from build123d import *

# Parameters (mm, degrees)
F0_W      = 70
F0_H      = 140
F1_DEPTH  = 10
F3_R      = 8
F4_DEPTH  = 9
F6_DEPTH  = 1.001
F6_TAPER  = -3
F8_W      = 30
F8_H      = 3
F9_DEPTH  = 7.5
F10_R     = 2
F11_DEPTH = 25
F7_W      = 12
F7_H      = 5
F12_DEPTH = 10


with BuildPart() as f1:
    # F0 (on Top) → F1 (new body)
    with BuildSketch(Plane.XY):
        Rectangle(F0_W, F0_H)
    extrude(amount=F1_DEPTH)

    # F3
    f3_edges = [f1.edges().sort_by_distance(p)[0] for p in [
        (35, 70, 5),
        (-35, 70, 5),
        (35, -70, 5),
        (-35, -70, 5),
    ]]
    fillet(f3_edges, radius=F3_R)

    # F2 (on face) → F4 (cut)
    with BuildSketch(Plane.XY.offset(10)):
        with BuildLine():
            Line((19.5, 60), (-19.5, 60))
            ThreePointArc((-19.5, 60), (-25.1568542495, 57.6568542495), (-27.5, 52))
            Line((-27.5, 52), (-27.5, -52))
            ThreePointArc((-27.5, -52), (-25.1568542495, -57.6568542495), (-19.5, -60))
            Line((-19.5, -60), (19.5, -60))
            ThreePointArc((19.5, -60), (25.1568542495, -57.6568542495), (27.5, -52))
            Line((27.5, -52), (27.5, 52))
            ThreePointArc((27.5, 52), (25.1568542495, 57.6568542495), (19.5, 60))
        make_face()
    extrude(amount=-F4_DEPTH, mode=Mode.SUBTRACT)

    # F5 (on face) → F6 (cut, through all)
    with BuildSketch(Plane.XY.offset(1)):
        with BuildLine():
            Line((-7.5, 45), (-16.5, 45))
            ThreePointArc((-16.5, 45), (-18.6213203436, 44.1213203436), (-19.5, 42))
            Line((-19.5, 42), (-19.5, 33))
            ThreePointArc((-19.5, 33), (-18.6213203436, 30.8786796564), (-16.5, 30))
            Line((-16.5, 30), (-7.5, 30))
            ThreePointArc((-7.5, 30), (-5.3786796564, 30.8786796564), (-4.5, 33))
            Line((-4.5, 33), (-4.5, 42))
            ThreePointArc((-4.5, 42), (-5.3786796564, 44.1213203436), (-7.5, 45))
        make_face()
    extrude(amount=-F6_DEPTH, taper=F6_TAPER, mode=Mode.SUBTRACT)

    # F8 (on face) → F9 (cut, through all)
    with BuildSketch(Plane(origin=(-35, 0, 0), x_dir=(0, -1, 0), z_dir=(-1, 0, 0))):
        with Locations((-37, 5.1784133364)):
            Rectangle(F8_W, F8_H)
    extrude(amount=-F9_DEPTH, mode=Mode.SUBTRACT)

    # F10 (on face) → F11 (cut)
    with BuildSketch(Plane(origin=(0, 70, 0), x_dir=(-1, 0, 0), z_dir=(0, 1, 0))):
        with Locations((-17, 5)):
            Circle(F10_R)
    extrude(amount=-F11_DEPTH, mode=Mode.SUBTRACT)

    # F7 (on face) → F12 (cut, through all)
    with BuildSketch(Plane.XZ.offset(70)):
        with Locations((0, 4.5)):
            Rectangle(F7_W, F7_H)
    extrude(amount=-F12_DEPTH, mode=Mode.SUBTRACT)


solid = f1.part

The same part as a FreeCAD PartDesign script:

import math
import FreeCAD as App
import Part
import Sketcher

V = App.Vector
Q = App.Units.Quantity


def edges_at(feature, points):
    """Names of the edges that pass closest to the given points."""
    edges = feature.Shape.Edges
    near = lambda p: min(range(len(edges)), key=lambda i: edges[i].distToShape(Part.Vertex(*p))[0])
    return sorted({f"Edge{near(p) + 1}" for p in points})


def add_polygon(sketch, points):
    """Adds a closed chain of lines whose ends are joined by coincident constraints."""
    first, n = sketch.GeometryCount, len(points)
    for a, b in zip(points, points[1:] + points[:1]):
        sketch.addGeometry(Part.LineSegment(App.Vector(*a, 0), App.Vector(*b, 0)), False)
    for i in range(n):
        sketch.addConstraint(Sketcher.Constraint("Coincident", first + i, 2, first + (i + 1) % n, 1))

doc = App.newDocument("Part")
body = doc.addObject("PartDesign::Body", "Body")

# Sketch on XY plane
sketch1 = body.newObject("Sketcher::SketchObject", "Sketch")
sketch1.AttachmentSupport = (doc.getObject("XY_Plane"), [""])
sketch1.MapMode = "FlatFace"
add_polygon(sketch1, [(-35, 70), (-35, -70), (35, -70), (35, 70)])  # lines 0-3
sketch1.addConstraint([
    Sketcher.Constraint("Vertical", 0),
    Sketcher.Constraint("Horizontal", 1),
    Sketcher.Constraint("Vertical", 2),
    Sketcher.Constraint("Horizontal", 3),
    Sketcher.Constraint("Symmetric", 0, 2, 2, 2, -1, 1),
    Sketcher.Constraint("DistanceX", 1, 1, 1, 2, Q("70 mm")),
    Sketcher.Constraint("DistanceY", 0, 2, 0, 1, Q("140 mm")),
])
pad1 = body.newObject("PartDesign::Pad", "Pad")
pad1.Profile = sketch1
pad1.Length = 10
doc.recompute()

fillet = body.newObject("PartDesign::Fillet", "Fillet")
fillet.Base = (pad1, edges_at(pad1, [
    (35, 70, 5),
    (-35, 70, 5),
    (35, -70, 5),
    (-35, -70, 5),
]))
fillet.Radius = 8

# Sketch on XY plane
sketch2 = body.newObject("Sketcher::SketchObject", "Sketch001")
sketch2.AttachmentSupport = (doc.getObject("XY_Plane"), [""])
sketch2.MapMode = "FlatFace"
sketch2.AttachmentOffset = App.Placement(V(0, 0, 10), App.Rotation())
sketch2.addGeometry([
    Part.LineSegment(V(20, 60, 0), V(-20, 60, 0)),  # 0
    Part.ArcOfCircle(Part.Circle(V(-20, 52, 0), V(0, 0, 1), 8), math.radians(90), math.radians(180)),  # 1
    Part.LineSegment(V(-28, 52, 0), V(-28, -52, 0)),  # 2
    Part.ArcOfCircle(Part.Circle(V(-20, -52, 0), V(0, 0, 1), 8), math.radians(180), math.radians(270)),  # 3
    Part.LineSegment(V(-20, -60, 0), V(20, -60, 0)),  # 4
    Part.ArcOfCircle(Part.Circle(V(20, -52, 0), V(0, 0, 1), 8), math.radians(-90), math.radians(0)),  # 5
    Part.LineSegment(V(28, -52, 0), V(28, 52, 0)),  # 6
    Part.ArcOfCircle(Part.Circle(V(20, 52, 0), V(0, 0, 1), 8), math.radians(0), math.radians(90)),  # 7
], False)
sketch2.addConstraint([
    Sketcher.Constraint("Tangent", 0, 2, 1, 1),
    Sketcher.Constraint("Tangent", 1, 2, 2, 1),
    Sketcher.Constraint("Tangent", 2, 2, 3, 1),
    Sketcher.Constraint("Tangent", 3, 2, 4, 1),
    Sketcher.Constraint("Tangent", 4, 2, 5, 1),
    Sketcher.Constraint("Tangent", 5, 2, 6, 1),
    Sketcher.Constraint("Tangent", 6, 2, 7, 1),
    Sketcher.Constraint("Tangent", 7, 2, 0, 1),
    Sketcher.Constraint("Horizontal", 0),
    Sketcher.Constraint("Vertical", 2),
    Sketcher.Constraint("Horizontal", 4),
    Sketcher.Constraint("Vertical", 6),
    Sketcher.Constraint("Equal", 1, 3),
    Sketcher.Constraint("Equal", 3, 5),
    Sketcher.Constraint("Equal", 5, 7),
    Sketcher.Constraint("Symmetric", 1, 3, 5, 3, -1, 1),
    Sketcher.Constraint("Radius", 1, Q("8 mm")),
    Sketcher.Constraint("DistanceX", 0, 2, 0, 1, Q("39 mm")),
    Sketcher.Constraint("DistanceY", 2, 2, 2, 1, Q("104 mm")),
])
pocket1 = body.newObject("PartDesign::Pocket", "Pocket")
pocket1.Profile = sketch2
pocket1.Length = 9

# Sketch on XY plane
sketch3 = body.newObject("Sketcher::SketchObject", "Sketch002")
sketch3.AttachmentSupport = (doc.getObject("XY_Plane"), [""])
sketch3.MapMode = "FlatFace"
sketch3.AttachmentOffset = App.Placement(V(0, 0, 1), App.Rotation())
sketch3.addGeometry([
    Part.LineSegment(V(-7.5, 45, 0), V(-16.5, 45, 0)),  # 0
    Part.ArcOfCircle(Part.Circle(V(-16.5, 42, 0), V(0, 0, 1), 3), math.radians(90), math.radians(180)),  # 1
    Part.LineSegment(V(-19.5, 42, 0), V(-19.5, 33, 0)),  # 2
    Part.ArcOfCircle(Part.Circle(V(-16.5, 33, 0), V(0, 0, 1), 3), math.radians(180), math.radians(270)),  # 3
    Part.LineSegment(V(-16.5, 30, 0), V(-7.5, 30, 0)),  # 4
    Part.ArcOfCircle(Part.Circle(V(-7.5, 33, 0), V(0, 0, 1), 3), math.radians(-90), math.radians(0)),  # 5
    Part.LineSegment(V(-4.5, 33, 0), V(-4.5, 42, 0)),  # 6
    Part.ArcOfCircle(Part.Circle(V(-7.5, 42, 0), V(0, 0, 1), 3), math.radians(0), math.radians(90)),  # 7
], False)
sketch3.addConstraint([
    Sketcher.Constraint("Tangent", 0, 2, 1, 1),
    Sketcher.Constraint("Tangent", 1, 2, 2, 1),
    Sketcher.Constraint("Tangent", 2, 2, 3, 1),
    Sketcher.Constraint("Tangent", 3, 2, 4, 1),
    Sketcher.Constraint("Tangent", 4, 2, 5, 1),
    Sketcher.Constraint("Tangent", 5, 2, 6, 1),
    Sketcher.Constraint("Tangent", 6, 2, 7, 1),
    Sketcher.Constraint("Tangent", 7, 2, 0, 1),
    Sketcher.Constraint("Horizontal", 0),
    Sketcher.Constraint("Vertical", 2),
    Sketcher.Constraint("Horizontal", 4),
    Sketcher.Constraint("Vertical", 6),
    Sketcher.Constraint("Equal", 1, 3),
    Sketcher.Constraint("Equal", 3, 5),
    Sketcher.Constraint("Equal", 5, 7),
    Sketcher.Constraint("Equal", 4, 2),
    Sketcher.Constraint("Radius", 1, Q("3 mm")),
    Sketcher.Constraint("DistanceX", 0, 2, 0, 1, Q("9 mm")),
    Sketcher.Constraint("DistanceY", -1, 1, 1, 3, Q("42 mm")),
    Sketcher.Constraint("DistanceX", 1, 3, -1, 1, Q("16.5 mm")),
])
pocket2 = body.newObject("PartDesign::Pocket", "Pocket001")
pocket2.Profile = sketch3
pocket2.Type = "ThroughAll"
pocket2.TaperAngle = 3

# Sketch on YZ plane
sketch4 = body.newObject("Sketcher::SketchObject", "Sketch003")
sketch4.AttachmentSupport = (doc.getObject("YZ_Plane"), [""])
sketch4.MapMode = "FlatFace"
sketch4.AttachmentOffset = App.Placement(V(0, 0, -35), App.Rotation())
add_polygon(sketch4, [(52, 6.7), (52, 3.7), (22, 3.7), (22, 6.7)])  # lines 0-3
sketch4.addConstraint([
    Sketcher.Constraint("Vertical", 0),
    Sketcher.Constraint("Horizontal", 1),
    Sketcher.Constraint("Vertical", 2),
    Sketcher.Constraint("Horizontal", 3),
    Sketcher.Constraint("DistanceX", 1, 2, 1, 1, Q("30 mm")),
    Sketcher.Constraint("DistanceY", 0, 2, 0, 1, Q("3 mm")),
    Sketcher.Constraint("DistanceX", -1, 1, 0, 2, Q("52 mm")),
    Sketcher.Constraint("DistanceY", -1, 1, 0, 2, Q("3.678413 mm")),
])
pocket3 = body.newObject("PartDesign::Pocket", "Pocket002")
pocket3.Profile = sketch4
pocket3.Length = 7.5
pocket3.Reversed = True

# Sketch on XZ plane
sketch5 = body.newObject("Sketcher::SketchObject", "Sketch004")
sketch5.AttachmentSupport = (doc.getObject("XZ_Plane"), [""])
sketch5.MapMode = "FlatFace"
sketch5.AttachmentOffset = App.Placement(V(0, 0, -70), App.Rotation())
sketch5.addGeometry(Part.Circle(V(17, 5, 0), V(0, 0, 1), 2), False)
sketch5.addConstraint([
    Sketcher.Constraint("Diameter", 0, Q("4 mm")),
    Sketcher.Constraint("DistanceX", -1, 1, 0, 3, Q("17 mm")),
    Sketcher.Constraint("DistanceY", -1, 1, 0, 3, Q("5 mm")),
])
pocket4 = body.newObject("PartDesign::Pocket", "Pocket003")
pocket4.Profile = sketch5
pocket4.Length = 25
pocket4.Reversed = True

# Sketch on XZ plane
sketch6 = body.newObject("Sketcher::SketchObject", "Sketch005")
sketch6.AttachmentSupport = (doc.getObject("XZ_Plane"), [""])
sketch6.MapMode = "FlatFace"
sketch6.AttachmentOffset = App.Placement(V(0, 0, 70), App.Rotation())
add_polygon(sketch6, [(-6, 7), (-6, 2), (6, 2), (6, 7)])  # lines 0-3
sketch6.addConstraint([
    Sketcher.Constraint("Vertical", 0),
    Sketcher.Constraint("Horizontal", 1),
    Sketcher.Constraint("Vertical", 2),
    Sketcher.Constraint("Horizontal", 3),
    Sketcher.Constraint("DistanceX", 1, 1, 1, 2, Q("12 mm")),
    Sketcher.Constraint("DistanceY", 0, 2, 0, 1, Q("5 mm")),
    Sketcher.Constraint("DistanceX", 0, 2, -1, 1, Q("6 mm")),
    Sketcher.Constraint("DistanceY", -1, 1, 0, 2, Q("2 mm")),
])
pocket5 = body.newObject("PartDesign::Pocket", "Pocket004")
pocket5.Profile = sketch6
pocket5.Length = 10

doc.recompute()
